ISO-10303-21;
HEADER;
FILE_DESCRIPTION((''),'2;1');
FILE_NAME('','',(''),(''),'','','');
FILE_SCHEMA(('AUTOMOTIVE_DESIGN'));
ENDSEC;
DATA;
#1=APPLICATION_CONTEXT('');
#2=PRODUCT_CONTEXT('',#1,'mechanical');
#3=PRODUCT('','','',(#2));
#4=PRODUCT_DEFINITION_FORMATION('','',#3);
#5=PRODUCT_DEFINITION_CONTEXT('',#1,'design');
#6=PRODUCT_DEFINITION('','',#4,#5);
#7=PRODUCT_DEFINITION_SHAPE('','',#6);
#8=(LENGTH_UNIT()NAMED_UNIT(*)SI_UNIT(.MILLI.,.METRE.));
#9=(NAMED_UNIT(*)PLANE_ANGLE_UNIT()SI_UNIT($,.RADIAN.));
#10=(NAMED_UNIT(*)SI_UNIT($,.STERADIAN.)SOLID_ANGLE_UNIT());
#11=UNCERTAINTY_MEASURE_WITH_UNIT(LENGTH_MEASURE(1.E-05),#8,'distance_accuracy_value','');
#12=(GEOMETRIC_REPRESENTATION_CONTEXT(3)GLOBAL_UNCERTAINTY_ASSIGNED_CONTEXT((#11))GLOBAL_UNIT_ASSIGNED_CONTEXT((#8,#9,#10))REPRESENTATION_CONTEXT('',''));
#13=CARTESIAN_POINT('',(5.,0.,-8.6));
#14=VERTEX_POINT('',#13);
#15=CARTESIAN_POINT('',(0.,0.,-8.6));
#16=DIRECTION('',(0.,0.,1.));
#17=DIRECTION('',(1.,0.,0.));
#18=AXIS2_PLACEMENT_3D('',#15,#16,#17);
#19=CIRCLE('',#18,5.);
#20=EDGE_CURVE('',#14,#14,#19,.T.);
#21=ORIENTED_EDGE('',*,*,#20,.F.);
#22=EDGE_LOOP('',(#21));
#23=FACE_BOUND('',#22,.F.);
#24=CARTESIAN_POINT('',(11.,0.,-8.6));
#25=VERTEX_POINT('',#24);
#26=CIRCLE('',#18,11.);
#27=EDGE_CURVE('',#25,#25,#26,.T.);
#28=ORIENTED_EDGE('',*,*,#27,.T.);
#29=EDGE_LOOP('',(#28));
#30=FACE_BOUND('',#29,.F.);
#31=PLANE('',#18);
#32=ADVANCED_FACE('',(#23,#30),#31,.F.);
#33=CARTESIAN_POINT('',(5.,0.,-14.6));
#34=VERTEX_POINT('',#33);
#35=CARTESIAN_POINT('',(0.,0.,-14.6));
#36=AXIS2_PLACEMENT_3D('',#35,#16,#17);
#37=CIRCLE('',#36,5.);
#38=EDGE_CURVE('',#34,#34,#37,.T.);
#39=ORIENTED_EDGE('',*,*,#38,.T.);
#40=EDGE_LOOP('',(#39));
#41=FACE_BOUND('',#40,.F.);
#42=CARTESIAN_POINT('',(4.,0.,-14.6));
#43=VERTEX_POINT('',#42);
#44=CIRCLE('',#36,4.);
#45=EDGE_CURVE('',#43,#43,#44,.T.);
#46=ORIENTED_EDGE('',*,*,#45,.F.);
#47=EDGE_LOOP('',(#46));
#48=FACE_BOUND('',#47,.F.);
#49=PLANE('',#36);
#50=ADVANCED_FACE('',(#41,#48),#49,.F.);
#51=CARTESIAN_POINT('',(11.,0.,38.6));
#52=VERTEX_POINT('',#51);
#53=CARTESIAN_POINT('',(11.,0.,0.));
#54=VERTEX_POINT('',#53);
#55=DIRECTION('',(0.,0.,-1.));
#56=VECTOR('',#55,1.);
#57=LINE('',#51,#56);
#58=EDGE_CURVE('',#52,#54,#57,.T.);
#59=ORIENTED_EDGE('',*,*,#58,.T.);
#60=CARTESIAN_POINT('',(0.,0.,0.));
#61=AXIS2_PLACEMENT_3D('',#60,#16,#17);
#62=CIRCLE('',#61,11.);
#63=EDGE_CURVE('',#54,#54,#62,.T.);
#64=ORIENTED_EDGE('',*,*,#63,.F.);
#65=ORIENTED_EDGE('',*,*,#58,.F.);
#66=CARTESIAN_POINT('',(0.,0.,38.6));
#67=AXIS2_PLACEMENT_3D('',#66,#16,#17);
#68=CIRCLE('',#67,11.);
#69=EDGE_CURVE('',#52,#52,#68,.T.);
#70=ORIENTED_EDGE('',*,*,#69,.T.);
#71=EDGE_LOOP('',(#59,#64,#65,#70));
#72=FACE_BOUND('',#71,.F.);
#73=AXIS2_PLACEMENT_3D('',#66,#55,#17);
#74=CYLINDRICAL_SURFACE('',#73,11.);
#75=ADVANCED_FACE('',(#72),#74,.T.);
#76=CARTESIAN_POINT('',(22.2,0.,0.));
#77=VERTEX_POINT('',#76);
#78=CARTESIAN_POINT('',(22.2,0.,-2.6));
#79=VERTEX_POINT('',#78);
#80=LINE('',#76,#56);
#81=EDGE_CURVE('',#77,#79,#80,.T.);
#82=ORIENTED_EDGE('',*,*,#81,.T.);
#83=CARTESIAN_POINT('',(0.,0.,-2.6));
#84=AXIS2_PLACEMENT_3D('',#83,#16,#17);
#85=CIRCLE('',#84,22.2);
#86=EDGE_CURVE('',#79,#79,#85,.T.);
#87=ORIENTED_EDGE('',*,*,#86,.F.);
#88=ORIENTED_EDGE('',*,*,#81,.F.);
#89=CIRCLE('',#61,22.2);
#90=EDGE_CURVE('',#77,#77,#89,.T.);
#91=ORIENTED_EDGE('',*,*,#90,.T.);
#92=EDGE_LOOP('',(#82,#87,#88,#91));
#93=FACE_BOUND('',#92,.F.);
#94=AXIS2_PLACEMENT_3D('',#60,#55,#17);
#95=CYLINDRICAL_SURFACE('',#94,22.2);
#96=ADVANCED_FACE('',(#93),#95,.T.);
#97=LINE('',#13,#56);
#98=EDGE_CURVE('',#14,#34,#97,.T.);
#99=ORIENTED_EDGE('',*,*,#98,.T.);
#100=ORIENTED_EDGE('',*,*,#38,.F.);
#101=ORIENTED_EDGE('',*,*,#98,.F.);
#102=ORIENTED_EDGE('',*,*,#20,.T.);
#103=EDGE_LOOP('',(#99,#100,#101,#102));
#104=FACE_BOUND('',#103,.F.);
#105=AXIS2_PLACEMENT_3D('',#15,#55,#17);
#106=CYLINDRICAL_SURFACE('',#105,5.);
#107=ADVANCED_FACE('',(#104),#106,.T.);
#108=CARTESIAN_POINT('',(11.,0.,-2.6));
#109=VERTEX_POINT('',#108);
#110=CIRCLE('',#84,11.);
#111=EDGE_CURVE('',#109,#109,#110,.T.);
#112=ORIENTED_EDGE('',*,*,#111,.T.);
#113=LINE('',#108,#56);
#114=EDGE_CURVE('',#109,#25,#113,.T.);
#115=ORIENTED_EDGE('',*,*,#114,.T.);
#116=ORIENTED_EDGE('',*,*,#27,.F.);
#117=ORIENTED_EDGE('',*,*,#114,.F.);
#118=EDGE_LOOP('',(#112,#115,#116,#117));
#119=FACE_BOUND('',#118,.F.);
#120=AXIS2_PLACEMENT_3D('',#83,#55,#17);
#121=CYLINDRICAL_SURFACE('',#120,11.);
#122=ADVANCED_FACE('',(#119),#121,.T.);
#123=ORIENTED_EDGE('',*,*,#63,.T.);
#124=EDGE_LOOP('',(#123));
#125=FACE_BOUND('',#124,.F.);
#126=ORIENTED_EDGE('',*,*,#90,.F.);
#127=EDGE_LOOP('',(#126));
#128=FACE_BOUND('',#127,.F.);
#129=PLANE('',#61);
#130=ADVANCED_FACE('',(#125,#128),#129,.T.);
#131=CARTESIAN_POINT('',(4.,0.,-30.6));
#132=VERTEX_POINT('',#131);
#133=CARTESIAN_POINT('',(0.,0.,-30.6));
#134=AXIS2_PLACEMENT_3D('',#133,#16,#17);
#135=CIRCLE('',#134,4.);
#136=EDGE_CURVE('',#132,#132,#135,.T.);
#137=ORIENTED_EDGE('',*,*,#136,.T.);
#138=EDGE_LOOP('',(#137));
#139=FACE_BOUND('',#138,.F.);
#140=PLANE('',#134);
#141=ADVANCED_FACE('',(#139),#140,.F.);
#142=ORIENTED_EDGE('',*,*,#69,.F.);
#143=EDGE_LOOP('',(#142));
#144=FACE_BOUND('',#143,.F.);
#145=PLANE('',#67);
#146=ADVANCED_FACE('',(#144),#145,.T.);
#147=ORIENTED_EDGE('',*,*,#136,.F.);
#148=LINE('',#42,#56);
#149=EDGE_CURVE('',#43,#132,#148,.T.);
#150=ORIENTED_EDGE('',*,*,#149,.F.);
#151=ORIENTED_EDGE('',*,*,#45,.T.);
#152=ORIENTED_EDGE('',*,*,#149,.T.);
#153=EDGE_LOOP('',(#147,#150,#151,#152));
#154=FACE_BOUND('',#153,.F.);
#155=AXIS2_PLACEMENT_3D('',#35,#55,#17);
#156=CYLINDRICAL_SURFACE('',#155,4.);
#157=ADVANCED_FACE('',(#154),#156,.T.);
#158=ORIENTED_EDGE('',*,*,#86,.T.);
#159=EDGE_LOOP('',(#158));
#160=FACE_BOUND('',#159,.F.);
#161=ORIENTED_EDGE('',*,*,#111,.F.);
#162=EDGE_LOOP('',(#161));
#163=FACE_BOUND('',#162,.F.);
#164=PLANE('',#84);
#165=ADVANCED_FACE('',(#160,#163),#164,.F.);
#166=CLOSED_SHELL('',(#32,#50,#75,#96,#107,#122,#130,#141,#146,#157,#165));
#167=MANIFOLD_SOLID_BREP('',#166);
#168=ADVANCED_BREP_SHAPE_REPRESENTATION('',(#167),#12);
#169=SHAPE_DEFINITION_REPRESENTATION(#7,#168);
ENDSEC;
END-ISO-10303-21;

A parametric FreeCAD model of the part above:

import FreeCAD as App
import Part
import Sketcher
from FreeCAD import Vector
Q = App.Units.Quantity


def add_polygon(sketch, points):
    """Adds a closed chain of lines whose ends are joined by coincident constraints."""
    first, n = sketch.GeometryCount, len(points)
    for a, b in zip(points, points[1:] + points[:1]):
        sketch.addGeometry(Part.LineSegment(App.Vector(*a, 0), App.Vector(*b, 0)), False)
    for i in range(n):
        sketch.addConstraint(Sketcher.Constraint("Coincident", first + i, 2, first + (i + 1) % n, 1))

doc = App.newDocument("Part")
body = doc.addObject("PartDesign::Body", "Body")

# Sketch on XZ plane
sketch1 = body.newObject("Sketcher::SketchObject", "Sketch")
sketch1.AttachmentSupport = (doc.getObject("XZ_Plane"), [""])
sketch1.MapMode = "FlatFace"
add_polygon(sketch1, [(11, 38.6), (0, 38.6), (0, -30.6), (4, -30.6), (4, -14.6), (5, -14.6), (5, -8.6), (11, -8.6), (11, -2.6), (22.2, -2.6), (22.2, 0), (11, 0)])  # lines 0-11
sketch1.addConstraint([
    Sketcher.Constraint("Horizontal", 0),
    Sketcher.Constraint("Vertical", 1),
    Sketcher.Constraint("Horizontal", 2),
    Sketcher.Constraint("Vertical", 3),
    Sketcher.Constraint("Horizontal", 4),
    Sketcher.Constraint("Vertical", 5),
    Sketcher.Constraint("Horizontal", 6),
    Sketcher.Constraint("Vertical", 7),
    Sketcher.Constraint("Horizontal", 8),
    Sketcher.Constraint("Vertical", 9),
    Sketcher.Constraint("Horizontal", 10),
    Sketcher.Constraint("Vertical", 11),
    Sketcher.Constraint("PointOnObject", 0, 2, -2),
    Sketcher.Constraint("PointOnObject", 9, 2, -1),
    Sketcher.Constraint("Vertical", 7, 2, 10, 2),
    Sketcher.Constraint("Equal", 6, 5),
    Sketcher.Constraint("Equal", 5, 7),
    Sketcher.Constraint("DistanceX", 0, 2, 0, 1, Q("11 mm")),
    Sketcher.Constraint("DistanceX", 2, 1, 2, 2, Q("4 mm")),
    Sketcher.Constraint("DistanceX", 4, 1, 4, 2, Q("1 mm")),
    Sketcher.Constraint("DistanceY", 3, 1, 3, 2, Q("16 mm")),
    Sketcher.Constraint("DistanceX", 8, 1, 8, 2, Q("11.2 mm")),
    Sketcher.Constraint("DistanceY", 1, 2, 1, 1, Q("69.2 mm")),
    Sketcher.Constraint("DistanceY", 9, 1, 9, 2, Q("2.6 mm")),
])
revolution = body.newObject("PartDesign::Revolution", "Revolution")
revolution.Profile = sketch1
revolution.ReferenceAxis = (sketch1, ["V_Axis"])
revolution.Angle = 360

doc.recompute()
